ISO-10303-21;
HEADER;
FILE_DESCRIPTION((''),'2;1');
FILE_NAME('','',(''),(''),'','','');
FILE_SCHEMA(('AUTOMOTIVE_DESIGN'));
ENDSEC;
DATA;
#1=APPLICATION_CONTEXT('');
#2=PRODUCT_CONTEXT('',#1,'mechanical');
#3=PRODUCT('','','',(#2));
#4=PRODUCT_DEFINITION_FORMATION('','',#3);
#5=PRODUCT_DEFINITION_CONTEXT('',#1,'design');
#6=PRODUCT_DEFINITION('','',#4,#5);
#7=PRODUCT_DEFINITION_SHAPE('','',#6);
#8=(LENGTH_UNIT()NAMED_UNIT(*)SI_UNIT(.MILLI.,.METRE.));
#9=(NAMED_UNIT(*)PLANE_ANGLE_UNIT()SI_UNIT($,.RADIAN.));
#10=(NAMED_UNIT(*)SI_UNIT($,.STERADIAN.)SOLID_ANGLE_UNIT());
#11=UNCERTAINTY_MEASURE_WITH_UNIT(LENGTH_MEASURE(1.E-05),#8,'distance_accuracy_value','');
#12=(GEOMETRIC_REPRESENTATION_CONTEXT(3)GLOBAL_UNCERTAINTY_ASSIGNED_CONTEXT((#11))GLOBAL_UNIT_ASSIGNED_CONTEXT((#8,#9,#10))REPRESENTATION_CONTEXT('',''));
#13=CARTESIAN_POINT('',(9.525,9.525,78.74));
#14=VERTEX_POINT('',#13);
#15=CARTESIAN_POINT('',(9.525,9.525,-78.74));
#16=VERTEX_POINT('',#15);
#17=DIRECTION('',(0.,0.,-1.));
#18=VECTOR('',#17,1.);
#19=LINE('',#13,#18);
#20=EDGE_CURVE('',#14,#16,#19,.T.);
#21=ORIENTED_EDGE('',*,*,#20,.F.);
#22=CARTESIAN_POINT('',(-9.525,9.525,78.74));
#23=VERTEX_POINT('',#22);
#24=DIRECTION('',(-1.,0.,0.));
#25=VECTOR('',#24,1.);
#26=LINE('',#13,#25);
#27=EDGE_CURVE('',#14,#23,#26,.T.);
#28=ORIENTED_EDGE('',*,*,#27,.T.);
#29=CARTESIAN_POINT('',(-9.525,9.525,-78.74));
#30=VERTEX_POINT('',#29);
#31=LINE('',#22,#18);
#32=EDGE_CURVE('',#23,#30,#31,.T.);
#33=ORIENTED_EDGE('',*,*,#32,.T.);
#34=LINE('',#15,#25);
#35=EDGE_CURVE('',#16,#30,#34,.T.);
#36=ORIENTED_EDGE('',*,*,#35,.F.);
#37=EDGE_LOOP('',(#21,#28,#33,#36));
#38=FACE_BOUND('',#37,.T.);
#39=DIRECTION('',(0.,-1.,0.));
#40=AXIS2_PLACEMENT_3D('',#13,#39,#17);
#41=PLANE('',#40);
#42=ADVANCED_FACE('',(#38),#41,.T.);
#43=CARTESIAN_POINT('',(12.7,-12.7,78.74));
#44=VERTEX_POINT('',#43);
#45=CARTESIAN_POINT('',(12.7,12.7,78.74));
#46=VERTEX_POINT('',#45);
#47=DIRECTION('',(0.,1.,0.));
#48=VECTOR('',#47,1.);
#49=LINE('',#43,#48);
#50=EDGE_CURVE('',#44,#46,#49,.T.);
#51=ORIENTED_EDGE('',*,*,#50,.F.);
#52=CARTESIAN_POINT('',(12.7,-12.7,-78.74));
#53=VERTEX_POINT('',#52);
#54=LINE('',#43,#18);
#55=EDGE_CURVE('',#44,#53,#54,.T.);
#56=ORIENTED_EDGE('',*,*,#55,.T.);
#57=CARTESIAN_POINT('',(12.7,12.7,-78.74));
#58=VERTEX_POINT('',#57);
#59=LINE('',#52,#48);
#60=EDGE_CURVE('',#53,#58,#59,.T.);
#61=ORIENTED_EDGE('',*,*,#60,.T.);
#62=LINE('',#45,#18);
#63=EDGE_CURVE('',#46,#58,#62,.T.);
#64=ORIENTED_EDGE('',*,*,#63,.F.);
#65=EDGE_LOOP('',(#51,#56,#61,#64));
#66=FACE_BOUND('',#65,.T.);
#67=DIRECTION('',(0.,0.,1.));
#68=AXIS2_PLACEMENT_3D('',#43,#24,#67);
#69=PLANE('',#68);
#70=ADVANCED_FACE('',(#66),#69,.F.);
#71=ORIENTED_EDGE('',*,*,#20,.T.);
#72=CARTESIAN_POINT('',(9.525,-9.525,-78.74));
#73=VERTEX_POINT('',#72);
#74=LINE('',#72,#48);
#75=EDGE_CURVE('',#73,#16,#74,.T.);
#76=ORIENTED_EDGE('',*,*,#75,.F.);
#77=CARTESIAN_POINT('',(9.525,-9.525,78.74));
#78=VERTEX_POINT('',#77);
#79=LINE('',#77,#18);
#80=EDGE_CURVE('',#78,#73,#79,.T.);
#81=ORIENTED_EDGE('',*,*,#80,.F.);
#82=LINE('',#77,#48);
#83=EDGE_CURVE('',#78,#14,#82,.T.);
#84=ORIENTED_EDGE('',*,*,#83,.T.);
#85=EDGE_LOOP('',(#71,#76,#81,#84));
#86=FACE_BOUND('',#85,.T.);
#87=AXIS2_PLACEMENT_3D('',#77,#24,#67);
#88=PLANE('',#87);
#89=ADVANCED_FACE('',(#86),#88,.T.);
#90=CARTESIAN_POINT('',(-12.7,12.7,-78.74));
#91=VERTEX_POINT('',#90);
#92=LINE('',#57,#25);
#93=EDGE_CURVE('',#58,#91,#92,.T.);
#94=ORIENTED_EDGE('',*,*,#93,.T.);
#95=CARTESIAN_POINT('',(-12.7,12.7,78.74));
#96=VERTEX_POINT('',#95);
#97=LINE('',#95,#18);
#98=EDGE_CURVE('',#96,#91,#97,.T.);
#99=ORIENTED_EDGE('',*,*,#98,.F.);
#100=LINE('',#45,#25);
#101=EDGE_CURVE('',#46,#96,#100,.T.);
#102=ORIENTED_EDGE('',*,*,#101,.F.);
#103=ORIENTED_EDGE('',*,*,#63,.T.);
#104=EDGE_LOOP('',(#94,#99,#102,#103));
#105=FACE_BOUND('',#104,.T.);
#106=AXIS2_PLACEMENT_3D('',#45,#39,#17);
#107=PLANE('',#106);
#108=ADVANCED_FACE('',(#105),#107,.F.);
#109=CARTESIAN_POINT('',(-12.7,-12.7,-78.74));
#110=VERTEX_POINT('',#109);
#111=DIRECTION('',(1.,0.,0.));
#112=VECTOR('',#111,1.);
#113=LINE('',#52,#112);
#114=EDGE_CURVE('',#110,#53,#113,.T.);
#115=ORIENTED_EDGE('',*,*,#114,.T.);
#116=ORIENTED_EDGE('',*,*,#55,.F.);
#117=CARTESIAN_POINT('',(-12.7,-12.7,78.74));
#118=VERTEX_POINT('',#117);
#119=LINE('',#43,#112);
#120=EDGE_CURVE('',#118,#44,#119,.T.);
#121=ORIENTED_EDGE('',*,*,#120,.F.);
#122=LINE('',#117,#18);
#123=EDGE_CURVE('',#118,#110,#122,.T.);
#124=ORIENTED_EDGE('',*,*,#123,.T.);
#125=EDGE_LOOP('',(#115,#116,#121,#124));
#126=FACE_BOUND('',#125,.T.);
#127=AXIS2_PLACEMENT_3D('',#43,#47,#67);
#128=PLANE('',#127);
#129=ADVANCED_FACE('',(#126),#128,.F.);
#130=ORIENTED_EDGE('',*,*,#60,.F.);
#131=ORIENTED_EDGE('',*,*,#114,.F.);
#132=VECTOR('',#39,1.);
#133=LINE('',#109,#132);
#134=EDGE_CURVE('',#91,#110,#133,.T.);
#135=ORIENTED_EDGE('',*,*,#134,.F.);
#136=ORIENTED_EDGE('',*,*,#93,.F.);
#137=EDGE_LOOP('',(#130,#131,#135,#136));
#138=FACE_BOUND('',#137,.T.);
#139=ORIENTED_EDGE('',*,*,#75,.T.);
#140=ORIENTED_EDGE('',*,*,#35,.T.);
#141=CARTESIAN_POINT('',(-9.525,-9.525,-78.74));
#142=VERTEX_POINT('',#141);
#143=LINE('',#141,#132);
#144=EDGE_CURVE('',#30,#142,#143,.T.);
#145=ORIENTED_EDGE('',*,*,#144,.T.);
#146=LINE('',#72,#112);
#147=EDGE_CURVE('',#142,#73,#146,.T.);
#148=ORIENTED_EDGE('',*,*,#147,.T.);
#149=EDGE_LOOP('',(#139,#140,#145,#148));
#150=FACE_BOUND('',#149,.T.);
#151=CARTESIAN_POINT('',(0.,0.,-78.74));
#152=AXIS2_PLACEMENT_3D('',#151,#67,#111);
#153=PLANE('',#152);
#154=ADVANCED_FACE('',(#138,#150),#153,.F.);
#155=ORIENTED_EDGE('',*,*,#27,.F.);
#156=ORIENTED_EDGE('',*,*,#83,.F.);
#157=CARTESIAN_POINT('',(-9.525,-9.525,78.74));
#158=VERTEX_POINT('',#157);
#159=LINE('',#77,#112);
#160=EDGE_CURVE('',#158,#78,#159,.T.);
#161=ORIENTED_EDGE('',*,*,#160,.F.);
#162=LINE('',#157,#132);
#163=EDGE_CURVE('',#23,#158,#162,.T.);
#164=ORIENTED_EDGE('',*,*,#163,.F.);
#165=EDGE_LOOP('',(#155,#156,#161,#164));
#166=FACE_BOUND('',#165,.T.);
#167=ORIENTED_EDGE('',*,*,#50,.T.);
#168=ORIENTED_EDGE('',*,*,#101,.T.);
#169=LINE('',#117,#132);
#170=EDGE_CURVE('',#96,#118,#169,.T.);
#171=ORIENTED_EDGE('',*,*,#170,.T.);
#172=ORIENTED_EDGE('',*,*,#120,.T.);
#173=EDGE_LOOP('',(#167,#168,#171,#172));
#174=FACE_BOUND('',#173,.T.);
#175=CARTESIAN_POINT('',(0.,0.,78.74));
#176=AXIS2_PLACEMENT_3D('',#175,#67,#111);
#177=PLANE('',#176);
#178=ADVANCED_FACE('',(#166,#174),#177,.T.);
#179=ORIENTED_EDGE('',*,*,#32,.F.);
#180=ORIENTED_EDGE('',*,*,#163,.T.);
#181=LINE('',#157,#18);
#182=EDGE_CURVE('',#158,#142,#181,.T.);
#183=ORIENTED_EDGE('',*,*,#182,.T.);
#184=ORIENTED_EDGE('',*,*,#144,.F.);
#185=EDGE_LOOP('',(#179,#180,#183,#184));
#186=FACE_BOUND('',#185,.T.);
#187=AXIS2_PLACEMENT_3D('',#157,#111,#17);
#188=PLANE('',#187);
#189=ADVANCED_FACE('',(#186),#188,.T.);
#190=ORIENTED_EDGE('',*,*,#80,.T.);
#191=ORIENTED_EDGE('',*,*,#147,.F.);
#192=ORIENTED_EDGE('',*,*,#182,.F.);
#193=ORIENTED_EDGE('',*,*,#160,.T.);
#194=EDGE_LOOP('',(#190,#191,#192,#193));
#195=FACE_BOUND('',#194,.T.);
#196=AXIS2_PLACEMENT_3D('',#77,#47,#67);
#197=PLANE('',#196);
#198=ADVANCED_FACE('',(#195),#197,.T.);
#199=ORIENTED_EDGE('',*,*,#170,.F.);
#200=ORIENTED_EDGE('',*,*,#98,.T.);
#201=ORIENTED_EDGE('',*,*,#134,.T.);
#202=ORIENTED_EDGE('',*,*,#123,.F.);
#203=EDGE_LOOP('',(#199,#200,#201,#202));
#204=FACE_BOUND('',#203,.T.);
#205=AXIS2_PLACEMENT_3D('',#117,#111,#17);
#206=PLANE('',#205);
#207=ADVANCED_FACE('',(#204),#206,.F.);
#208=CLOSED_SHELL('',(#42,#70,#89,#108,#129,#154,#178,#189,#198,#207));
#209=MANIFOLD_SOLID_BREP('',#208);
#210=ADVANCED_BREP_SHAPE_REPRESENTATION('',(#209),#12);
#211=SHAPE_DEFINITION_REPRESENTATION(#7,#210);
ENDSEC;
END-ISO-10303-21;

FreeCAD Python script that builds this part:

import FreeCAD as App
import Part
import Sketcher

V = App.Vector
Q = App.Units.Quantity

doc = App.newDocument("Part")
body = doc.addObject("PartDesign::Body", "Body")

# Sketch on XY plane
sketch1 = doc.addObject("Sketcher::SketchObject", "Sketch")
body.addObject(sketch1)
sketch1.AttachmentSupport = (doc.XY_Plane, [""])
sketch1.MapMode = "FlatFace"
sketch1.addGeometry([
    Part.LineSegment(V(-13, 13, 0), V(-13, -13, 0)),  # 0
    Part.LineSegment(V(-13, -13, 0), V(13, -13, 0)),  # 1
    Part.LineSegment(V(13, -13, 0), V(13, 13, 0)),  # 2
    Part.LineSegment(V(13, 13, 0), V(-13, 13, 0)),  # 3
    Part.LineSegment(V(10, -10, 0), V(-10, -10, 0)),  # 4
    Part.LineSegment(V(-10, -10, 0), V(-10, 10, 0)),  # 5
    Part.LineSegment(V(-10, 10, 0), V(10, 10, 0)),  # 6
    Part.LineSegment(V(10, 10, 0), V(10, -10, 0)),  # 7
], False)
sketch1.addConstraint([
    Sketcher.Constraint("Coincident", 0, 2, 1, 1),
    Sketcher.Constraint("Coincident", 1, 2, 2, 1),
    Sketcher.Constraint("Coincident", 2, 2, 3, 1),
    Sketcher.Constraint("Coincident", 3, 2, 0, 1),
    Sketcher.Constraint("Coincident", 4, 2, 5, 1),
    Sketcher.Constraint("Coincident", 5, 2, 6, 1),
    Sketcher.Constraint("Coincident", 6, 2, 7, 1),
    Sketcher.Constraint("Coincident", 7, 2, 4, 1),
    Sketcher.Constraint("Vertical", 0),
    Sketcher.Constraint("Horizontal", 1),
    Sketcher.Constraint("Vertical", 2),
    Sketcher.Constraint("Horizontal", 3),
    Sketcher.Constraint("Horizontal", 4),
    Sketcher.Constraint("Vertical", 5),
    Sketcher.Constraint("Horizontal", 6),
    Sketcher.Constraint("Vertical", 7),
    Sketcher.Constraint("Symmetric", 0, 2, 2, 2, -1, 1),
    Sketcher.Constraint("Symmetric", 4, 2, 6, 2, -1, 1),
    Sketcher.Constraint("Equal", 3, 0),
    Sketcher.Constraint("Equal", 6, 5),
    Sketcher.Constraint("DistanceX", 1, 1, 1, 2, Q("1 in")),
    Sketcher.Constraint("DistanceX", 4, 2, 4, 1, Q("0.75 in")),
])
pad1 = doc.addObject("PartDesign::Pad", "Pad")
body.addObject(pad1)
pad1.Profile = sketch1
pad1.Type = "TwoLengths"
pad1.Length = Q("3.1 in")
pad1.Length2 = Q("3.1 in")

doc.recompute()
